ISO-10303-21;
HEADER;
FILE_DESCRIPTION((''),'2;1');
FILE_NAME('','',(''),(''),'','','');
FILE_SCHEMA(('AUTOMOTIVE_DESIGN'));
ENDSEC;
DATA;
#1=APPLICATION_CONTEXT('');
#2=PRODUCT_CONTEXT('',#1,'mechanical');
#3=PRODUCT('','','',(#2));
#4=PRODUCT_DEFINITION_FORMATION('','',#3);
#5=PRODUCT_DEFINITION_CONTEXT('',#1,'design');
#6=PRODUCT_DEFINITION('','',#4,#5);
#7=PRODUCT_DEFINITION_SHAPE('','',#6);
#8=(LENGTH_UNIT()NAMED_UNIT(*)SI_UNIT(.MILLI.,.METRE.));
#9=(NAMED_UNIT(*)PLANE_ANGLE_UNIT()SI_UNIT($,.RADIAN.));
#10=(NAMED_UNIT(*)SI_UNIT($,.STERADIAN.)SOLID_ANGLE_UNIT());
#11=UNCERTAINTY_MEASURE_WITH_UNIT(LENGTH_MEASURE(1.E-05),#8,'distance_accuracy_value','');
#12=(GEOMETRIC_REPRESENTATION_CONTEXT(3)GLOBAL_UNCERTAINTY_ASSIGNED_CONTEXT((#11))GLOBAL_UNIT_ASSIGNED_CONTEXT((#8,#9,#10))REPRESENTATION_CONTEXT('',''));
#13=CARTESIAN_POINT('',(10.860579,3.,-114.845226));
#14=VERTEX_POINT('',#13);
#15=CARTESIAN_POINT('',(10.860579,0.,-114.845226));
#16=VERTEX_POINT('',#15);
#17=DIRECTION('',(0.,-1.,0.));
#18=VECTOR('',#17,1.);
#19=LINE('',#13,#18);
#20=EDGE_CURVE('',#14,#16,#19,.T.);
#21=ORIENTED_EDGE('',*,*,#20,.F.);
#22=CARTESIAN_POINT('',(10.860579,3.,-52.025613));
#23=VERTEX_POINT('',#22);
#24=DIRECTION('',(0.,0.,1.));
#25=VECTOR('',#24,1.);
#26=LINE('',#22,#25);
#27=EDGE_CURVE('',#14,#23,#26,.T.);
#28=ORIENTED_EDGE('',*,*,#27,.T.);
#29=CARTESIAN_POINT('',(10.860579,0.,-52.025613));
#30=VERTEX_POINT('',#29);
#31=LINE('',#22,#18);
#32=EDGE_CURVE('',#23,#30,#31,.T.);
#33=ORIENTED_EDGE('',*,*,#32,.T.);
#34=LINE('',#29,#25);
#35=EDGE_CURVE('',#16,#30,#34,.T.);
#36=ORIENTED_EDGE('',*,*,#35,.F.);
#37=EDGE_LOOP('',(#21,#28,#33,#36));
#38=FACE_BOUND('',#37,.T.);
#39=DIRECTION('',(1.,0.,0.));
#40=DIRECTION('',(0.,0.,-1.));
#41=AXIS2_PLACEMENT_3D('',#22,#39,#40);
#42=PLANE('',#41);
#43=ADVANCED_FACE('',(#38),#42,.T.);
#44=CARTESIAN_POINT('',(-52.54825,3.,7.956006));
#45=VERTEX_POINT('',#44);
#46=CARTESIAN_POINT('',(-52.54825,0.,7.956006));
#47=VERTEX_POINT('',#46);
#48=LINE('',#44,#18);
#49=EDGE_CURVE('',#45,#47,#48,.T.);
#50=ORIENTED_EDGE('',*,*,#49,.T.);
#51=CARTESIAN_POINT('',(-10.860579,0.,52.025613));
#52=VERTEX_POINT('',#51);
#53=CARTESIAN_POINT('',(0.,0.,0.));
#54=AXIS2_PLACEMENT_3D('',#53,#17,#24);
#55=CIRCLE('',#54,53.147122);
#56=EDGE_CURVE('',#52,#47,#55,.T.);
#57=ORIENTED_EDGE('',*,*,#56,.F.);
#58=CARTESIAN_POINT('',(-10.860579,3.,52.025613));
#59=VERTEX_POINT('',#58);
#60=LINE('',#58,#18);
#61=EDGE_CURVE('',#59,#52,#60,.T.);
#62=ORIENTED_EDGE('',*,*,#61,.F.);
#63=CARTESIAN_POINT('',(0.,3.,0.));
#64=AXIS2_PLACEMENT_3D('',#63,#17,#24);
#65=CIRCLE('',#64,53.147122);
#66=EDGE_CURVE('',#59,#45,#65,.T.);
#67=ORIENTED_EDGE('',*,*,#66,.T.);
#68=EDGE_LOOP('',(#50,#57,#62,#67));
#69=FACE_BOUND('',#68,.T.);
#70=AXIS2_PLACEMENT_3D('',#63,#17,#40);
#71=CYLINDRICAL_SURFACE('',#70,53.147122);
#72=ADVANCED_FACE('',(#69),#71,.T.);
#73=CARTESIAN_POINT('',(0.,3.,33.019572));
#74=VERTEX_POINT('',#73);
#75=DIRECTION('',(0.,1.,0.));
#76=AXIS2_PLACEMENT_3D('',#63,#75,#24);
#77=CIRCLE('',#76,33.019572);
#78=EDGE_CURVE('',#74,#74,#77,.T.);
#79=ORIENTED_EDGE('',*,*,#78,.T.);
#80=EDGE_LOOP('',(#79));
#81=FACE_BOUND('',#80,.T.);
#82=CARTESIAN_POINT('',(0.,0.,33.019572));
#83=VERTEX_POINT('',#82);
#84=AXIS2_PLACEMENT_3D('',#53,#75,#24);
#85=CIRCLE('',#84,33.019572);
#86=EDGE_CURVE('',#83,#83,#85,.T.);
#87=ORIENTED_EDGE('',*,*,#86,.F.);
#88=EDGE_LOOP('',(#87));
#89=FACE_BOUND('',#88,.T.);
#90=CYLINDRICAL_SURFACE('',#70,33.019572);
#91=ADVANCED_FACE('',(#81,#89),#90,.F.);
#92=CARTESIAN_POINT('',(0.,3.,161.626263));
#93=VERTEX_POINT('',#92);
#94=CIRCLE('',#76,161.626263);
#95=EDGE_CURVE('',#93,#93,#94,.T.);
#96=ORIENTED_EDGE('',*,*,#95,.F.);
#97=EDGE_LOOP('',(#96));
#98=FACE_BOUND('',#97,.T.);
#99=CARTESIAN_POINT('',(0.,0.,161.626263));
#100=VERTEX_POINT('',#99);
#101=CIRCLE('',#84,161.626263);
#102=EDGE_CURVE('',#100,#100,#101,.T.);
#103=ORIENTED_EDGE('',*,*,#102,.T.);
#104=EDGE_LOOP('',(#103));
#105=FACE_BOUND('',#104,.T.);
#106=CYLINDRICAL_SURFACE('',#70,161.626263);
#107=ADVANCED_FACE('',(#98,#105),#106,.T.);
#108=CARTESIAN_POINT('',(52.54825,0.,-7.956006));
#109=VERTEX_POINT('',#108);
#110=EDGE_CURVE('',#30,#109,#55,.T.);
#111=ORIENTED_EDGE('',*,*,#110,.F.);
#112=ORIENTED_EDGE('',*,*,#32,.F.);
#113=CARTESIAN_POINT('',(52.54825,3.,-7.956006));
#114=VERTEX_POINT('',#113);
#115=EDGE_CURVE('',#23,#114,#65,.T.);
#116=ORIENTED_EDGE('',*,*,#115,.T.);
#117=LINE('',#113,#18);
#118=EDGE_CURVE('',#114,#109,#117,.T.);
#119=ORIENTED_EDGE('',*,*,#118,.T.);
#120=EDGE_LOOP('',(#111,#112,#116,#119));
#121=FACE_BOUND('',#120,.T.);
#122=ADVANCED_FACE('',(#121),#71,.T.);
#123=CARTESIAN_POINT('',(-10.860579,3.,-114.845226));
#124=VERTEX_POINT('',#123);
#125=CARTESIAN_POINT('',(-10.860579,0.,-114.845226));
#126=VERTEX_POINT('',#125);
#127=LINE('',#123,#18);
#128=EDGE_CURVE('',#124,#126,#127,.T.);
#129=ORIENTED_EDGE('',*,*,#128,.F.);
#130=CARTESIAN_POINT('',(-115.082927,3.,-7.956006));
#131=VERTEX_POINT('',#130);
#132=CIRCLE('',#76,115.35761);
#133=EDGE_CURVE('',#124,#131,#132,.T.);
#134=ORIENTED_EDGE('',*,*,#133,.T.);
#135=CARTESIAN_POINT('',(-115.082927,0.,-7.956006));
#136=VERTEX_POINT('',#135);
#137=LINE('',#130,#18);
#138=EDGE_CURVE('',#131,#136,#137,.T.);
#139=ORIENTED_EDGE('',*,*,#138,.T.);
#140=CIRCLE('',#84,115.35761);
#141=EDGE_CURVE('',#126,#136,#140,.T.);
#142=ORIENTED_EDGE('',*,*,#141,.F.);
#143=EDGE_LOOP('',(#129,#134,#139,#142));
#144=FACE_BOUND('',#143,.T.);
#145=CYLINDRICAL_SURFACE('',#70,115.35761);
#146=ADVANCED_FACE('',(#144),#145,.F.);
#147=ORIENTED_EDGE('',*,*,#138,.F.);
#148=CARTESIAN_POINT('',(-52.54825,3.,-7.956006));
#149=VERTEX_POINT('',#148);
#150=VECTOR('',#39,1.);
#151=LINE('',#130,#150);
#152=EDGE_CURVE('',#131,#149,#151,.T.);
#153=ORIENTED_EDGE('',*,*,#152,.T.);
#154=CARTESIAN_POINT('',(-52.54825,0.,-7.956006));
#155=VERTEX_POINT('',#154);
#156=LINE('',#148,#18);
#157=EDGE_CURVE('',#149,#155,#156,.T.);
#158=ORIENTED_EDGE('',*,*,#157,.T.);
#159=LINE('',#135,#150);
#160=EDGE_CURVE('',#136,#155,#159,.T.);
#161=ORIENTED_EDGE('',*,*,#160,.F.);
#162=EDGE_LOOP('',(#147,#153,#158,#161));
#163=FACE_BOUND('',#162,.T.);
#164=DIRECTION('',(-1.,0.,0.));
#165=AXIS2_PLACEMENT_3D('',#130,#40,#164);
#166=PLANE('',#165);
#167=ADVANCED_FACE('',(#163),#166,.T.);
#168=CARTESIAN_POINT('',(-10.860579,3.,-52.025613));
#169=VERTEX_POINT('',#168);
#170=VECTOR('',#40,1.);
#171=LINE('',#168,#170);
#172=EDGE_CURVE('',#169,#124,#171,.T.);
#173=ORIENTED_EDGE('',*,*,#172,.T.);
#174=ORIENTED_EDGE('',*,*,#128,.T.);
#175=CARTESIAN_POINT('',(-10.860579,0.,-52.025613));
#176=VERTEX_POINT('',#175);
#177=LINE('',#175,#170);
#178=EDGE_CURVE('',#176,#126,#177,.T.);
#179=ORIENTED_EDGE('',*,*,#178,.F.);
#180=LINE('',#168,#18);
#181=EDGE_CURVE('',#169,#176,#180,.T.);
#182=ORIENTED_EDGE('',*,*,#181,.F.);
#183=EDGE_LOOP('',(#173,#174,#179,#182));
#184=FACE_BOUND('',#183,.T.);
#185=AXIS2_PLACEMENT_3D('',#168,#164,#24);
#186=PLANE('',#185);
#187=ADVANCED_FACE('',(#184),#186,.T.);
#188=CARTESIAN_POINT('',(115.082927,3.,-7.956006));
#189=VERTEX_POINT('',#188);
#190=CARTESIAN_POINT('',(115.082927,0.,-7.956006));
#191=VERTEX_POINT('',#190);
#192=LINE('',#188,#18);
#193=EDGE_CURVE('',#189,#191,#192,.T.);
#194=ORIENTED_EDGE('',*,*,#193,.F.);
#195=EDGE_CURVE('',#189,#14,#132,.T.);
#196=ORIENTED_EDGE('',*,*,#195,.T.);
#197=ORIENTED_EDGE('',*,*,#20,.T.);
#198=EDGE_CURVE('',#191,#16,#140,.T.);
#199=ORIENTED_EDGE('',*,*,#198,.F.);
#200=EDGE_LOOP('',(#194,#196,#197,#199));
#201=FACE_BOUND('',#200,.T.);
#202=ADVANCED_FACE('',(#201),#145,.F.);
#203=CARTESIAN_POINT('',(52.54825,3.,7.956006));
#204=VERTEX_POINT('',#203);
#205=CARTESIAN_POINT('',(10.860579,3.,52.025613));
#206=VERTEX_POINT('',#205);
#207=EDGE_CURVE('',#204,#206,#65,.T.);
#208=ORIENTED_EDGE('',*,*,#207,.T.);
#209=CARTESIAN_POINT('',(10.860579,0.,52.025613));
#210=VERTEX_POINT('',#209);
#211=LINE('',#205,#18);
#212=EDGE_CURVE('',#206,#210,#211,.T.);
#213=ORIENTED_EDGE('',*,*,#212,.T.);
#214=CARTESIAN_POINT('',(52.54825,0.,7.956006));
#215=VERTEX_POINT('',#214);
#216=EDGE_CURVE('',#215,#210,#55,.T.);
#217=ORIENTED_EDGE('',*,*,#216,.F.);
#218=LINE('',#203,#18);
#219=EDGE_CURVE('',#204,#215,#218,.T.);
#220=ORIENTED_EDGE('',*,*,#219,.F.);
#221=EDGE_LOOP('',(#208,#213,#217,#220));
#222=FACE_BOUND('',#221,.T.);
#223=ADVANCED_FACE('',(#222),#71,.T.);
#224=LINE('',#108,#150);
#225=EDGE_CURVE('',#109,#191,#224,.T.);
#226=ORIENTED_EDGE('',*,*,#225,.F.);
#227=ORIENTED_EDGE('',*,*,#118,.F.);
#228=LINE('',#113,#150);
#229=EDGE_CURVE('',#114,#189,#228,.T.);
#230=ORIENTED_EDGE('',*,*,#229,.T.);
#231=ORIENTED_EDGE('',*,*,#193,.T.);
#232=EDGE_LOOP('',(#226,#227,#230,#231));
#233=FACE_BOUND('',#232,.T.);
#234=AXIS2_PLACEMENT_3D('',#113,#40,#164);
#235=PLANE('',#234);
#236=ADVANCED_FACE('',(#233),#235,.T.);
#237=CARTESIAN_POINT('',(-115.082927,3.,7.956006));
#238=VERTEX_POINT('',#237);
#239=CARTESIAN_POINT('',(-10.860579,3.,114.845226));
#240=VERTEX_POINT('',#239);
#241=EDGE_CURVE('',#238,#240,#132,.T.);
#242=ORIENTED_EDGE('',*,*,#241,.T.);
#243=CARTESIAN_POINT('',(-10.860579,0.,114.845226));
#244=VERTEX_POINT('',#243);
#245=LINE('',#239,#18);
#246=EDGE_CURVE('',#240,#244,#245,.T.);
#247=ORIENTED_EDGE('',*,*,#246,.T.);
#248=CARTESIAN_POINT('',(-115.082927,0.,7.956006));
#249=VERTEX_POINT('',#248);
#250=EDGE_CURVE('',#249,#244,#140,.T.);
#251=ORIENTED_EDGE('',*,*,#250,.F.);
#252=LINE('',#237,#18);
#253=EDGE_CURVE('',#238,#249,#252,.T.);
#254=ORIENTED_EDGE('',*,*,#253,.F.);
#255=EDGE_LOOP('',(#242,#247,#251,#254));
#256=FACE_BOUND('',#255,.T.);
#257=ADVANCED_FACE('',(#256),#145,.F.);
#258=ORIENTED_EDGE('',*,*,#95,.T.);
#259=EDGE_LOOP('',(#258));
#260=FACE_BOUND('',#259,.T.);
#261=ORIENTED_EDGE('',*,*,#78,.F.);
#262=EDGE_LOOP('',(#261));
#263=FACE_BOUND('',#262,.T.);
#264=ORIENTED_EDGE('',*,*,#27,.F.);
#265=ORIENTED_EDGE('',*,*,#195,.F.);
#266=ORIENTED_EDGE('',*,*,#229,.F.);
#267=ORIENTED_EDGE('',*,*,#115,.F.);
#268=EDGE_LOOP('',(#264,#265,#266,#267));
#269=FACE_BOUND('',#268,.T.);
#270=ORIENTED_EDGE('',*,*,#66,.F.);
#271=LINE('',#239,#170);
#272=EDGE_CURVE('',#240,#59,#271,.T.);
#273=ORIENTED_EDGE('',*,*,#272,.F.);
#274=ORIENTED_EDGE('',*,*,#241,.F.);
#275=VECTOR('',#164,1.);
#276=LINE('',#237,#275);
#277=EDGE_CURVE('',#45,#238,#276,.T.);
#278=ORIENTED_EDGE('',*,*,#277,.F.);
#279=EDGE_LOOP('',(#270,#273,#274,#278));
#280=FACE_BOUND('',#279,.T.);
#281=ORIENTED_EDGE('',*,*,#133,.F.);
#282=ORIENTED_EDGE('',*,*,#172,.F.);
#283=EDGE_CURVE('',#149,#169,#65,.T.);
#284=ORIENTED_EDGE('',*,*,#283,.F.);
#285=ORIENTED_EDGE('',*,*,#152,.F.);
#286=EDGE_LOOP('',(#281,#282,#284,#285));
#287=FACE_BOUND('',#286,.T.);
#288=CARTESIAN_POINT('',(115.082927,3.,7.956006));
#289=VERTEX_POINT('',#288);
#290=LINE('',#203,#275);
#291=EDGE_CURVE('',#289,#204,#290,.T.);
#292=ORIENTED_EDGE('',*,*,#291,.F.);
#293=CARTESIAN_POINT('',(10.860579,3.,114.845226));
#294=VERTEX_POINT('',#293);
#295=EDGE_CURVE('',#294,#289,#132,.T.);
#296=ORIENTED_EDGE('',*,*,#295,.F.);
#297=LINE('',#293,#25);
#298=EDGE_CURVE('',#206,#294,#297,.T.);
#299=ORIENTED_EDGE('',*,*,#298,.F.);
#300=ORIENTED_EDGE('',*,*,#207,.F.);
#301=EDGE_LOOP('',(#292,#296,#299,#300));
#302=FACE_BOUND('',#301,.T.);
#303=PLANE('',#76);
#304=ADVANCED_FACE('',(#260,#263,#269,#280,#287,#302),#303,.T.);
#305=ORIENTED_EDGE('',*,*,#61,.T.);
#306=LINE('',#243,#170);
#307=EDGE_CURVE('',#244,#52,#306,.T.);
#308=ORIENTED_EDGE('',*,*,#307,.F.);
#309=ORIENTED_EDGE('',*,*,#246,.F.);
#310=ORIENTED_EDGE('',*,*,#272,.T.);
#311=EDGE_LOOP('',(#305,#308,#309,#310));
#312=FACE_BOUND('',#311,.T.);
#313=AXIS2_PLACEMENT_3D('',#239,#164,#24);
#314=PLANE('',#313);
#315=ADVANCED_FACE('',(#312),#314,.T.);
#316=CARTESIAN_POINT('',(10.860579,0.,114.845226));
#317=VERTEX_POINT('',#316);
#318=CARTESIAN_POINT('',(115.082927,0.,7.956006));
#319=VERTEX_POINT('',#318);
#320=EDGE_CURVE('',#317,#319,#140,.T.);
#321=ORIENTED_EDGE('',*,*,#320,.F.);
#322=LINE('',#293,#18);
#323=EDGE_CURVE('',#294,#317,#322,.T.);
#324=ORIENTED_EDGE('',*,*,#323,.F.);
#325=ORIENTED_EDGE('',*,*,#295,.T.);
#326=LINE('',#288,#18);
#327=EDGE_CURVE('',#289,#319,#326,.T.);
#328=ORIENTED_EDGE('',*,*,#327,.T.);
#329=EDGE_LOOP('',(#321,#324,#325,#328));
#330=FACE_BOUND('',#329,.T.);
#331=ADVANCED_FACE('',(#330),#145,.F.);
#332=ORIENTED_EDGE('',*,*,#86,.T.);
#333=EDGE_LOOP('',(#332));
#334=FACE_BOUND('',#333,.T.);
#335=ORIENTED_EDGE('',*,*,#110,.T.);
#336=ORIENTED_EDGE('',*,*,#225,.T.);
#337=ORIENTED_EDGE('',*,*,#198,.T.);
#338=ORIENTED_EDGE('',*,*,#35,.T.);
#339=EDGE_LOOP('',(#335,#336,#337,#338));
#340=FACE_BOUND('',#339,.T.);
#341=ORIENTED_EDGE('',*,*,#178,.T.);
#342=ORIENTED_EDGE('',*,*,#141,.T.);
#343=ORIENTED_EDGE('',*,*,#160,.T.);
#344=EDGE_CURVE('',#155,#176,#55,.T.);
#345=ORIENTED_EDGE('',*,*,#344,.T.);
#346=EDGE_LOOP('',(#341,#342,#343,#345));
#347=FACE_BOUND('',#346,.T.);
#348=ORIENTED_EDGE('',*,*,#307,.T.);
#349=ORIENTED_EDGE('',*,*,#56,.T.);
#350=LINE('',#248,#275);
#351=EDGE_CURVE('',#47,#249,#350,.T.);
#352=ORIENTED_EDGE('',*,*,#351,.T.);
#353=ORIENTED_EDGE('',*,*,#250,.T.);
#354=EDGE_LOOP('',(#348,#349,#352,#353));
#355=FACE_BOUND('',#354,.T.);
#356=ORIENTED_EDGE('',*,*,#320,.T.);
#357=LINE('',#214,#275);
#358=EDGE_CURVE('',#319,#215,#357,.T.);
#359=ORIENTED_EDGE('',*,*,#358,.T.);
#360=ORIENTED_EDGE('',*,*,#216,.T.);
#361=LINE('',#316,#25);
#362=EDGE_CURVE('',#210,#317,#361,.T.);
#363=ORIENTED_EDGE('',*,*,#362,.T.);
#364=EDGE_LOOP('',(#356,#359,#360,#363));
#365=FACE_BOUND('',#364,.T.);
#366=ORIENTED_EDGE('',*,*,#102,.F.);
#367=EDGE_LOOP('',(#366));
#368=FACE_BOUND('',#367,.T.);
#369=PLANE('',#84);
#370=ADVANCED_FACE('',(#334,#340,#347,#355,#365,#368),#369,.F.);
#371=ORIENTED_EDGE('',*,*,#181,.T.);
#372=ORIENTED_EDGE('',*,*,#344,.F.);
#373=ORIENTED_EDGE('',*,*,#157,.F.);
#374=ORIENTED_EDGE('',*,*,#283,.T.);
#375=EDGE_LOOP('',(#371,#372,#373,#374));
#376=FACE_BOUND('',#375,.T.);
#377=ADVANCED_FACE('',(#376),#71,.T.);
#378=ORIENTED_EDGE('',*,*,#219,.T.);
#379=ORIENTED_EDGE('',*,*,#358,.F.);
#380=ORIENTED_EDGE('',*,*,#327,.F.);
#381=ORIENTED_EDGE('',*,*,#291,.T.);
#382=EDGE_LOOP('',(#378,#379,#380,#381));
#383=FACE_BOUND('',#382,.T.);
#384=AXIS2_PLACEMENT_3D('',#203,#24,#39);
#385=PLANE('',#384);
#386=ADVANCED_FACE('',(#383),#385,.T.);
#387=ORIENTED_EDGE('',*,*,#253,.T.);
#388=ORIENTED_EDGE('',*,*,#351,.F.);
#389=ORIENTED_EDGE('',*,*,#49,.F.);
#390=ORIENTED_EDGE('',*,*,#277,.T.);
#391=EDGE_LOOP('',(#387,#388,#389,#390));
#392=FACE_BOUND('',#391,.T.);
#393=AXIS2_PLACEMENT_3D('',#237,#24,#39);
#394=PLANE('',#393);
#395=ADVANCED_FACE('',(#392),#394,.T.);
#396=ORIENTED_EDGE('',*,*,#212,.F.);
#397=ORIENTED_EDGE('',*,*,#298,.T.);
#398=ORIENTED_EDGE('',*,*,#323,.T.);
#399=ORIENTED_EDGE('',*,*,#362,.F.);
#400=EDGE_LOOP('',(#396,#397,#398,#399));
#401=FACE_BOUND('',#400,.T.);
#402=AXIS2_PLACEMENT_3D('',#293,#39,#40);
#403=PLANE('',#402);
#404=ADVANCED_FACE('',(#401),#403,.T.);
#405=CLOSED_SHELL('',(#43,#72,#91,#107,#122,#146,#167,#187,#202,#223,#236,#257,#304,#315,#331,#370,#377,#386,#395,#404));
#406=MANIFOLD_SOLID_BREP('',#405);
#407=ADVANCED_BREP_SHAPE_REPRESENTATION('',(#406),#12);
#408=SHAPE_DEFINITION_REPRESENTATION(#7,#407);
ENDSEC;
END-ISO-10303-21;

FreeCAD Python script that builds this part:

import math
import FreeCAD as App
import Part
import Sketcher

doc = App.newDocument("Part")
body = doc.addObject("PartDesign::Body", "Body")

# Sketch on XZ plane
sketch1 = doc.addObject("Sketcher::SketchObject", "Sketch")
body.addObject(sketch1)
sketch1.AttachmentSupport = (doc.XZ_Plane, [""])
sketch1.MapMode = "FlatFace"
sketch1.addGeometry(Part.Circle(App.Vector(0, 0, 0), App.Vector(0, 0, 1), 161.626263), False)
sketch1.addGeometry(Part.LineSegment(App.Vector(-52.54825, -7.956006, 0), App.Vector(-115.082927, -7.956006, 0)), False)
sketch1.addGeometry(Part.ArcOfCircle(Part.Circle(App.Vector(0, 0, 0), App.Vector(0, 0, 1), 115.35761), math.radians(-176.045274), math.radians(-95.40223)), False)
sketch1.addGeometry(Part.LineSegment(App.Vector(-10.860579, -114.845226, 0), App.Vector(-10.860579, -52.025613, 0)), False)
sketch1.addGeometry(Part.ArcOfCircle(Part.Circle(App.Vector(0, 0, 0), App.Vector(0, 0, 1), 53.147122), math.radians(-171.390588), math.radians(-101.791412)), False)
sketch1.addGeometry(Part.ArcOfCircle(Part.Circle(App.Vector(0, 0, 0), App.Vector(0, 0, 1), 115.35761), math.radians(95.40223), math.radians(176.045274)), False)
sketch1.addGeometry(Part.LineSegment(App.Vector(-115.082927, 7.956006, 0), App.Vector(-52.54825, 7.956006, 0)), False)
sketch1.addGeometry(Part.ArcOfCircle(Part.Circle(App.Vector(0, 0, 0), App.Vector(0, 0, 1), 53.147122), math.radians(101.791412), math.radians(171.390588)), False)
sketch1.addGeometry(Part.LineSegment(App.Vector(-10.860579, 52.025613, 0), App.Vector(-10.860579, 114.845226, 0)), False)
sketch1.addGeometry(Part.LineSegment(App.Vector(115.082927, -7.956006, 0), App.Vector(52.54825, -7.956006, 0)), False)
sketch1.addGeometry(Part.ArcOfCircle(Part.Circle(App.Vector(0, 0, 0), App.Vector(0, 0, 1), 53.147122), math.radians(-78.208588), math.radians(-8.609412)), False)
sketch1.addGeometry(Part.LineSegment(App.Vector(10.860579, -52.025613, 0), App.Vector(10.860579, -114.845226, 0)), False)
sketch1.addGeometry(Part.ArcOfCircle(Part.Circle(App.Vector(0, 0, 0), App.Vector(0, 0, 1), 115.35761), math.radians(-84.59777), math.radians(-3.954726)), False)
sketch1.addGeometry(Part.Circle(App.Vector(0, 0, 0), App.Vector(0, 0, 1), 33.019572), False)
sketch1.addGeometry(Part.ArcOfCircle(Part.Circle(App.Vector(0, 0, 0), App.Vector(0, 0, 1), 53.147122), math.radians(8.609412), math.radians(78.208588)), False)
sketch1.addGeometry(Part.LineSegment(App.Vector(52.54825, 7.956006, 0), App.Vector(115.082927, 7.956006, 0)), False)
sketch1.addGeometry(Part.ArcOfCircle(Part.Circle(App.Vector(0, 0, 0), App.Vector(0, 0, 1), 115.35761), math.radians(3.954726), math.radians(84.59777)), False)
sketch1.addGeometry(Part.LineSegment(App.Vector(10.860579, 114.845226, 0), App.Vector(10.860579, 52.025613, 0)), False)
sketch1.addConstraint(Sketcher.Constraint("Coincident", 1, 2, 2, 1))
sketch1.addConstraint(Sketcher.Constraint("Coincident", 2, 2, 3, 1))
sketch1.addConstraint(Sketcher.Constraint("Coincident", 3, 2, 4, 2))
sketch1.addConstraint(Sketcher.Constraint("Coincident", 4, 1, 1, 1))
sketch1.addConstraint(Sketcher.Constraint("Coincident", 5, 2, 6, 1))
sketch1.addConstraint(Sketcher.Constraint("Coincident", 6, 2, 7, 2))
sketch1.addConstraint(Sketcher.Constraint("Coincident", 7, 1, 8, 1))
sketch1.addConstraint(Sketcher.Constraint("Coincident", 8, 2, 5, 1))
sketch1.addConstraint(Sketcher.Constraint("Coincident", 9, 2, 10, 2))
sketch1.addConstraint(Sketcher.Constraint("Coincident", 10, 1, 11, 1))
sketch1.addConstraint(Sketcher.Constraint("Coincident", 11, 2, 12, 1))
sketch1.addConstraint(Sketcher.Constraint("Coincident", 12, 2, 9, 1))
sketch1.addConstraint(Sketcher.Constraint("Coincident", 14, 1, 15, 1))
sketch1.addConstraint(Sketcher.Constraint("Coincident", 15, 2, 16, 1))
sketch1.addConstraint(Sketcher.Constraint("Coincident", 16, 2, 17, 1))
sketch1.addConstraint(Sketcher.Constraint("Coincident", 17, 2, 14, 2))
sketch1.addConstraint(Sketcher.Constraint("Horizontal", 1))
sketch1.addConstraint(Sketcher.Constraint("Vertical", 3))
sketch1.addConstraint(Sketcher.Constraint("Horizontal", 6))
sketch1.addConstraint(Sketcher.Constraint("Vertical", 8))
sketch1.addConstraint(Sketcher.Constraint("Horizontal", 9))
sketch1.addConstraint(Sketcher.Constraint("Vertical", 11))
sketch1.addConstraint(Sketcher.Constraint("Horizontal", 15))
sketch1.addConstraint(Sketcher.Constraint("Vertical", 17))
sketch1.addConstraint(Sketcher.Constraint("Coincident", 0, 3, -1, 1))
sketch1.addConstraint(Sketcher.Constraint("Coincident", 2, 3, -1, 1))
sketch1.addConstraint(Sketcher.Constraint("Coincident", 4, 3, -1, 1))
sketch1.addConstraint(Sketcher.Constraint("Coincident", 5, 3, -1, 1))
sketch1.addConstraint(Sketcher.Constraint("Coincident", 7, 3, -1, 1))
sketch1.addConstraint(Sketcher.Constraint("Coincident", 10, 3, -1, 1))
sketch1.addConstraint(Sketcher.Constraint("Coincident", 12, 3, -1, 1))
sketch1.addConstraint(Sketcher.Constraint("Coincident", 13, 3, -1, 1))
sketch1.addConstraint(Sketcher.Constraint("Coincident", 14, 3, -1, 1))
sketch1.addConstraint(Sketcher.Constraint("Coincident", 16, 3, -1, 1))
sketch1.addConstraint(Sketcher.Constraint("Equal", 2, 5))
sketch1.addConstraint(Sketcher.Constraint("Equal", 4, 7))
sketch1.addConstraint(Sketcher.Constraint("Equal", 7, 10))
sketch1.addConstraint(Sketcher.Constraint("Equal", 5, 12))
sketch1.addConstraint(Sketcher.Constraint("Equal", 10, 14))
sketch1.addConstraint(Sketcher.Constraint("Equal", 12, 16))
sketch1.addConstraint(Sketcher.Constraint("Horizontal", 4, 1, 9, 2))
sketch1.addConstraint(Sketcher.Constraint("Horizontal", 3, 2, 10, 1))
sketch1.addConstraint(Sketcher.Constraint("Horizontal", 6, 2, 14, 1))
sketch1.addConstraint(Sketcher.Constraint("Horizontal", 8, 2, 16, 2))
sketch1.addConstraint(Sketcher.Constraint("Vertical", 1, 2, 5, 2))
sketch1.addConstraint(Sketcher.Constraint("Vertical", 3, 2, 7, 1))
sketch1.addConstraint(Sketcher.Constraint("Radius", 2, 115.35761))
sketch1.addConstraint(Sketcher.Constraint("Diameter", 0, 323.252526))
sketch1.addConstraint(Sketcher.Constraint("Diameter", 13, 66.039145))
sketch1.addConstraint(Sketcher.Constraint("Radius", 4, 53.147122))
sketch1.addConstraint(Sketcher.Constraint("DistanceX", 1, 2, 1, 1, 62.534677))
sketch1.addConstraint(Sketcher.Constraint("DistanceY", 3, 1, 3, 2, 62.819613))
pad1 = doc.addObject("PartDesign::Pad", "Pad")
body.addObject(pad1)
pad1.Profile = sketch1
pad1.Length = 3
pad1.Reversed = True

doc.recompute()
